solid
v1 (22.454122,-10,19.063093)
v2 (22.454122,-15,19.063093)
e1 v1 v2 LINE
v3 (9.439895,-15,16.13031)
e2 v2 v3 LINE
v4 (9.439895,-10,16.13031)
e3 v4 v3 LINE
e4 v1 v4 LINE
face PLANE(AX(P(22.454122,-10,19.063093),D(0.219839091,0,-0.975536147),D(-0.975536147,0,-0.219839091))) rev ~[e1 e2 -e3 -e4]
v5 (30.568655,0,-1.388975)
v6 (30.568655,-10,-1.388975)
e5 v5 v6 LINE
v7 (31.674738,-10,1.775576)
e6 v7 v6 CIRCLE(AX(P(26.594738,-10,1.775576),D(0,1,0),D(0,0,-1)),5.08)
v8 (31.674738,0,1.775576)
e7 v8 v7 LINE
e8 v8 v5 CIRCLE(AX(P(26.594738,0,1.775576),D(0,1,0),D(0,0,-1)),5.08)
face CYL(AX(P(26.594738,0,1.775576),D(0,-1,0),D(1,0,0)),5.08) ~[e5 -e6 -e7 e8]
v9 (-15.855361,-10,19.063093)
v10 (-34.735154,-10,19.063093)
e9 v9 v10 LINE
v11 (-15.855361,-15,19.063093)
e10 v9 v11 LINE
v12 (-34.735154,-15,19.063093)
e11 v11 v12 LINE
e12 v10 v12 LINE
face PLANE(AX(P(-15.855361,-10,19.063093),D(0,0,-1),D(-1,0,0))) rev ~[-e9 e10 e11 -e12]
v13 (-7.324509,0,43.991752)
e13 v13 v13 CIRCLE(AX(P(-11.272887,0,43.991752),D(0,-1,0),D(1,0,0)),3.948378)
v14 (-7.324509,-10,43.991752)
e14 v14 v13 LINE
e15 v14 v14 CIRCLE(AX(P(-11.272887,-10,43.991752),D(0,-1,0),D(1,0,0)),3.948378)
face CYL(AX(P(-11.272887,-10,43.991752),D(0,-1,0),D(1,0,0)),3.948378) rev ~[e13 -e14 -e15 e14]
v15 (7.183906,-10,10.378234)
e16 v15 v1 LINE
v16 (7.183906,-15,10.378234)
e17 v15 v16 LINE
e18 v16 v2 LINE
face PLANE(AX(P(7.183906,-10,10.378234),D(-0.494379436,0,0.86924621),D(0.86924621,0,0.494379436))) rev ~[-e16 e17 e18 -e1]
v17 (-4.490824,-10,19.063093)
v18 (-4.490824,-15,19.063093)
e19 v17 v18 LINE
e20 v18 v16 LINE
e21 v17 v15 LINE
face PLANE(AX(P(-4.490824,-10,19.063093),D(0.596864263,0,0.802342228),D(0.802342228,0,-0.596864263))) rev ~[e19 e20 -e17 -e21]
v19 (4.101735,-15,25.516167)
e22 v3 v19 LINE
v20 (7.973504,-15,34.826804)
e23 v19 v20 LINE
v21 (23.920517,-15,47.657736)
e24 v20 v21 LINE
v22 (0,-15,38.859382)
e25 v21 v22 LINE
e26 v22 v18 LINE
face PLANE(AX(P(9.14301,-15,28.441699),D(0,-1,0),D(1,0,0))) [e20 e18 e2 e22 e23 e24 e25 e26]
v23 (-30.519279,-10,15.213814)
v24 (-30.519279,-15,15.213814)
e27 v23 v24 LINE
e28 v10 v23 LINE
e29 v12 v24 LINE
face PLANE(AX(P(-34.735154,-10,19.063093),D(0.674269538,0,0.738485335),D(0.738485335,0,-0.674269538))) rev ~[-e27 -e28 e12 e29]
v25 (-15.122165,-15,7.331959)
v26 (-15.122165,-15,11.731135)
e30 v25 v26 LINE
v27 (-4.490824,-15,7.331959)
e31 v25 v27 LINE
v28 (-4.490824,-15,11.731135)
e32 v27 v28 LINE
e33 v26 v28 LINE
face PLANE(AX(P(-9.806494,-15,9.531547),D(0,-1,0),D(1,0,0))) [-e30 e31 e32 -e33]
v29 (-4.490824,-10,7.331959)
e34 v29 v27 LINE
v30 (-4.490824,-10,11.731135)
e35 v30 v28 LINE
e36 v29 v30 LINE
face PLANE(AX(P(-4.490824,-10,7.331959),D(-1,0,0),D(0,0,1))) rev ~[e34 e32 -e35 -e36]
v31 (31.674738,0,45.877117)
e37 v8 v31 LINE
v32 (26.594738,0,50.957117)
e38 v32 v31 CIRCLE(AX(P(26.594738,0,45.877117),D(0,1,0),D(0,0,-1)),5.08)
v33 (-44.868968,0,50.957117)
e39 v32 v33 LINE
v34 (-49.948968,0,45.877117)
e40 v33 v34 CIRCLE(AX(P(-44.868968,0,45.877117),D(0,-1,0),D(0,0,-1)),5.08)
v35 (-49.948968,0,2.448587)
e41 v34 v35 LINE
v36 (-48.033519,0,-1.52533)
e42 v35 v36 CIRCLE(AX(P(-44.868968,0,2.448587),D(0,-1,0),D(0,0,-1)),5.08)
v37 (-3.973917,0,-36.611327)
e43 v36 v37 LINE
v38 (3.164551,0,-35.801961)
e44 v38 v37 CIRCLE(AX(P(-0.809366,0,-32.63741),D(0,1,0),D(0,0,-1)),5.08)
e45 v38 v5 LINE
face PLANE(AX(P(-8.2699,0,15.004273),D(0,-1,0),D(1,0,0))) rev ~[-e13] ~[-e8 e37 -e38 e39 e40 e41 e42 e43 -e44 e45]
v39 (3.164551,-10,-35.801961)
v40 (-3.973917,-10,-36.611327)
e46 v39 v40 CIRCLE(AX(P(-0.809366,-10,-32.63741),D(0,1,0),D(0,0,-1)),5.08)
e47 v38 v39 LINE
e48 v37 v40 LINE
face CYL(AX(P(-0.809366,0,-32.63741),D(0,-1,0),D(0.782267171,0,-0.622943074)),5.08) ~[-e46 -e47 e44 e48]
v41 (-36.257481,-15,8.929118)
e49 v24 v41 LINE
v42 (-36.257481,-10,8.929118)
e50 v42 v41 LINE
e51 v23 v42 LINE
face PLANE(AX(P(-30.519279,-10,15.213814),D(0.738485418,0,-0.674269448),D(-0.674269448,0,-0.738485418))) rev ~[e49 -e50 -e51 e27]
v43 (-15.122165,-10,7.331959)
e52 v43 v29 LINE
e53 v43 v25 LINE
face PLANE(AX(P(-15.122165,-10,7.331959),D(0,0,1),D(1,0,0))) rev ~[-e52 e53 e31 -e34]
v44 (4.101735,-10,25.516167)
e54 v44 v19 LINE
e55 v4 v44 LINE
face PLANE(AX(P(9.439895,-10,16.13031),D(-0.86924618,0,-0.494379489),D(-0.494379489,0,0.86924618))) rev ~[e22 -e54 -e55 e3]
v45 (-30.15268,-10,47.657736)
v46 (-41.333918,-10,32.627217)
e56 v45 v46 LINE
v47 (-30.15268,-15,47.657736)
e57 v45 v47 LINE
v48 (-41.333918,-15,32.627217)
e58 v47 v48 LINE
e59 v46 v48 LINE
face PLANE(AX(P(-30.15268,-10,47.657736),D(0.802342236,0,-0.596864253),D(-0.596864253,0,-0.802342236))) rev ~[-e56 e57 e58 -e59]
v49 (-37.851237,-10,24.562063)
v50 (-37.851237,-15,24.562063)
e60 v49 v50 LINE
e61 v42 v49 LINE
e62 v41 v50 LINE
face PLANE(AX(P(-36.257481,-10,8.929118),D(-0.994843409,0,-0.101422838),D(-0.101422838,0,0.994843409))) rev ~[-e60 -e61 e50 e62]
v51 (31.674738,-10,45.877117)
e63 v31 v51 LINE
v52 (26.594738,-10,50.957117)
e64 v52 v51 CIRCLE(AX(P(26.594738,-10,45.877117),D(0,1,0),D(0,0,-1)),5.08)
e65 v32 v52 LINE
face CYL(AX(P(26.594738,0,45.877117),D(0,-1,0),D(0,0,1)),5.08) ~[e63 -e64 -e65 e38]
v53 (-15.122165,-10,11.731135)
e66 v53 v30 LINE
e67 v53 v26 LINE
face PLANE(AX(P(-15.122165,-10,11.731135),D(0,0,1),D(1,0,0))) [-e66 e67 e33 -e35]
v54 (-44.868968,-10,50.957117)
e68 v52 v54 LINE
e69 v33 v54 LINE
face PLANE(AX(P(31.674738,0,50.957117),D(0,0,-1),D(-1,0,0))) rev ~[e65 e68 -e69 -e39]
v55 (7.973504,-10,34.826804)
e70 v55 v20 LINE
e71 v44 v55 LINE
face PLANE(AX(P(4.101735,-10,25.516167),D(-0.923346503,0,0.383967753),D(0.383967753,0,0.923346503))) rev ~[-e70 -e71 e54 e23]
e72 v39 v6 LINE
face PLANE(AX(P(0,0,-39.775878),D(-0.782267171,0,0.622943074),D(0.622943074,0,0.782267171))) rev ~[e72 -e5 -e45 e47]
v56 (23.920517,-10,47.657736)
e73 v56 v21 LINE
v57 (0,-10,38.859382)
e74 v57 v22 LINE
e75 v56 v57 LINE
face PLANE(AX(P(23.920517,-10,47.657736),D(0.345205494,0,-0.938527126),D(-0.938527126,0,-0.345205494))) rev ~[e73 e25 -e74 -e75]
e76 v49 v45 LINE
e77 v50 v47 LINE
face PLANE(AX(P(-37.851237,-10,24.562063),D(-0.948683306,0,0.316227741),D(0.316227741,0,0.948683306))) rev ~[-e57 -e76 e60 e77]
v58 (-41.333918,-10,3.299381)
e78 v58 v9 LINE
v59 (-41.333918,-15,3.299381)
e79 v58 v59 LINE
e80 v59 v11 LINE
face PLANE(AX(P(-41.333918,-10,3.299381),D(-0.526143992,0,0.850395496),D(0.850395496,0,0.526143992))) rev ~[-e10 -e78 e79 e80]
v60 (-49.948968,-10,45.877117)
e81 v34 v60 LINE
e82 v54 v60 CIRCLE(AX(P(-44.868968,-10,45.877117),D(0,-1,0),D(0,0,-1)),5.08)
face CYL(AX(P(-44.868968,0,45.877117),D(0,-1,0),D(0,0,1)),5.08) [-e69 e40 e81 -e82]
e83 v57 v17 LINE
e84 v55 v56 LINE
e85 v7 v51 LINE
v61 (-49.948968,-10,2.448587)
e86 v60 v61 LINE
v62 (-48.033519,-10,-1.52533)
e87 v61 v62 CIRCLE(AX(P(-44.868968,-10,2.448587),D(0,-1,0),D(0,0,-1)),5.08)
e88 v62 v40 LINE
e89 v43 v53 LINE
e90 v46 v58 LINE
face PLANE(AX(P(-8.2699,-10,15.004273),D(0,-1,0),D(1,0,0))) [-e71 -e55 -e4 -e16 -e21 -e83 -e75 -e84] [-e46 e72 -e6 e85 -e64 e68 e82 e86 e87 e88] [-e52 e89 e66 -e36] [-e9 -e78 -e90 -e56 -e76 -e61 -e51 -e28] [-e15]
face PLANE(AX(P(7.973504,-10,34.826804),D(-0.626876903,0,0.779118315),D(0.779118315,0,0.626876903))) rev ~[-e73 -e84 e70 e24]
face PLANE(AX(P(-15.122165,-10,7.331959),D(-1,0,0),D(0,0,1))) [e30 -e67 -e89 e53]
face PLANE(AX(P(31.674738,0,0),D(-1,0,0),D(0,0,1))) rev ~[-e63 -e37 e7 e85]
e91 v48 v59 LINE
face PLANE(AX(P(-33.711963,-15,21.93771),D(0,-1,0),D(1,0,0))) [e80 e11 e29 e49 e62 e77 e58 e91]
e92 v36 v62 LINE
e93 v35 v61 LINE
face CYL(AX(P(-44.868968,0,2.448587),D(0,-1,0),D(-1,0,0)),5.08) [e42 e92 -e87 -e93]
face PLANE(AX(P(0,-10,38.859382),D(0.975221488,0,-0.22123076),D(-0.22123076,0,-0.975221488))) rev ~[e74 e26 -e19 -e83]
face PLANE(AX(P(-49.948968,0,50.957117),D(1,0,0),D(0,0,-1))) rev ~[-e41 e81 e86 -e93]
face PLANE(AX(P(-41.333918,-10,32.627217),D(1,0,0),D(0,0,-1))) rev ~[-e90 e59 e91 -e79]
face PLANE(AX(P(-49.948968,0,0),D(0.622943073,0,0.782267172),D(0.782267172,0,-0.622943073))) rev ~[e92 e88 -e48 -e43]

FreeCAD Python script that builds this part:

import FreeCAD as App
import Part
import Sketcher
from FreeCAD import Vector


def edges_at(feature, points):
    """Names of the edges that pass closest to the given points."""
    edges = feature.Shape.Edges
    near = lambda p: min(range(len(edges)), key=lambda i: edges[i].distToShape(Part.Vertex(*p))[0])
    return sorted({f"Edge{near(p) + 1}" for p in points})


def add_polygon(sketch, points):
    """Adds a closed chain of lines whose ends are joined by coincident constraints."""
    first, n = sketch.GeometryCount, len(points)
    for a, b in zip(points, points[1:] + points[:1]):
        sketch.addGeometry(Part.LineSegment(App.Vector(*a, 0), App.Vector(*b, 0)), False)
    for i in range(n):
        sketch.addConstraint(Sketcher.Constraint("Coincident", first + i, 2, first + (i + 1) % n, 1))

doc = App.newDocument("Part")
params = doc.addObject("Spreadsheet::Sheet", "Params")
for row, (alias, value) in enumerate([
    ("pad1_length", "10 mm"),
    ("pad2_length", "5 mm"),
    ("pocket1_length", "101.092 mm"),
    ("fillet_radius", "5.08 mm"),
], start=1):
    params.set(f"A{row}", alias)
    params.set(f"B{row}", "=" + value)
    params.setAlias(f"B{row}", alias)

body = doc.addObject("PartDesign::Body", "Body")

# Sketch on XZ plane
sketch1 = body.newObject("Sketcher::SketchObject", "Sketch")
sketch1.AttachmentSupport = (doc.getObject("XZ_Plane"), [""])
sketch1.MapMode = "FlatFace"
add_polygon(sketch1, [(32, 51), (-50, 51), (-50, 0), (0, -40), (32, 0)])  # lines 0-4
sketch1.addConstraint(Sketcher.Constraint("Horizontal", 0))
sketch1.addConstraint(Sketcher.Constraint("Vertical", 1))
sketch1.addConstraint(Sketcher.Constraint("Vertical", 4))
sketch1.addConstraint(Sketcher.Constraint("PointOnObject", 1, 2, -1))
sketch1.addConstraint(Sketcher.Constraint("PointOnObject", 2, 2, -2))
sketch1.addConstraint(Sketcher.Constraint("PointOnObject", 3, 2, -1))
sketch1.addConstraint(Sketcher.Constraint("Perpendicular", 2, 3))
sketch1.addConstraint(Sketcher.Constraint("DistanceX", 0, 2, 0, 1, 81.623706))
sketch1.addConstraint(Sketcher.Constraint("DistanceY", 1, 2, 1, 1, 50.957117))
sketch1.addConstraint(Sketcher.Constraint("DistanceX", -1, 1, 3, 2, 31.674738))
pad1 = body.newObject("PartDesign::Pad", "Pad")
pad1.Profile = sketch1
pad1.setExpression("Length", "Params.pad1_length")

# Sketch on XZ plane
sketch2 = body.newObject("Sketcher::SketchObject", "Sketch001")
sketch2.AttachmentSupport = (doc.getObject("XZ_Plane"), [""])
sketch2.MapMode = "FlatFace"
sketch2.AttachmentOffset = App.Placement(Vector(0, 0, 10), App.Rotation())
add_polygon(sketch2, [(-37.9, 24.6), (-30.2, 47.7), (-41.3, 32.6), (-41.3, 3.3), (-15.9, 19.1), (-34.7, 19.1), (-30.5, 15.2), (-36.3, 8.9)])  # lines 0-7
add_polygon(sketch2, [(8, 34.8), (23.9, 47.7), (0, 38.9), (-4.5, 19.1), (7.2, 10.4), (22.5, 19.1), (9.4, 16.1), (4.1, 25.5)])  # lines 8-15
add_polygon(sketch2, [(-15.1, 11.7), (-15.1, 7.3), (-4.5, 7.3), (-4.5, 11.7)])  # lines 16-19
sketch2.addConstraint(Sketcher.Constraint("Vertical", 2))
sketch2.addConstraint(Sketcher.Constraint("Horizontal", 4))
sketch2.addConstraint(Sketcher.Constraint("Vertical", 16))
sketch2.addConstraint(Sketcher.Constraint("Horizontal", 17))
sketch2.addConstraint(Sketcher.Constraint("Vertical", 18))
sketch2.addConstraint(Sketcher.Constraint("Horizontal", 19))
sketch2.addConstraint(Sketcher.Constraint("PointOnObject", 9, 2, -2))
sketch2.addConstraint(Sketcher.Constraint("Perpendicular", 5, 6))
sketch2.addConstraint(Sketcher.Constraint("Perpendicular", 1, 11))
sketch2.addConstraint(Sketcher.Constraint("Perpendicular", 12, 14))
sketch2.addConstraint(Sketcher.Constraint("Horizontal", 0, 2, 8, 2))
sketch2.addConstraint(Sketcher.Constraint("Horizontal", 4, 2, 10, 2))
sketch2.addConstraint(Sketcher.Constraint("Horizontal", 10, 2, 12, 2))
sketch2.addConstraint(Sketcher.Constraint("Vertical", 10, 2, 17, 2))
sketch2.addConstraint(Sketcher.Constraint("Distance", 1, 18.733301))
sketch2.addConstraint(Sketcher.Constraint("DistanceX", 17, 1, 17, 2, 10.631341))
sketch2.addConstraint(Sketcher.Constraint("DistanceX", 5, 2, 0, 2, 0.366599))
sketch2.addConstraint(Sketcher.Constraint("DistanceX", 6, 2, 5, 2, 5.738202))
sketch2.addConstraint(Sketcher.Constraint("DistanceY", 6, 2, 1, 2, 23.698099))
sketch2.addConstraint(Sketcher.Constraint("DistanceY", 11, 2, 18, 2, 1.352901))
sketch2.addConstraint(Sketcher.Constraint("Distance", 6, 8.510251))
sketch2.addConstraint(Sketcher.Constraint("Distance", 11, 14.550811))
sketch2.addConstraint(Sketcher.Constraint("Distance", 13, 13.340589))
sketch2.addConstraint(Sketcher.Constraint("Distance", 15, 10.083579))
sketch2.addConstraint(Sketcher.Constraint("DistanceX", 4, 2, 4, 1, 18.879793))
sketch2.addConstraint(Sketcher.Constraint("DistanceY", 2, 2, 2, 1, 29.327836))
sketch2.addConstraint(Sketcher.Constraint("DistanceY", 16, 2, 16, 1, 4.399176))
sketch2.addConstraint(Sketcher.Constraint("DistanceX", 0, 2, -1, 1, 30.15268))
sketch2.addConstraint(Sketcher.Constraint("DistanceY", -1, 1, 2, 2, 3.299381))
sketch2.addConstraint(Sketcher.Constraint("DistanceX", 3, 2, -1, 1, 15.855361))
sketch2.addConstraint(Sketcher.Constraint("DistanceY", -1, 1, 9, 2, 38.859382))
sketch2.addConstraint(Sketcher.Constraint("DistanceY", -1, 1, 13, 2, 16.13031))
sketch2.addConstraint(Sketcher.Constraint("DistanceY", -1, 1, 16, 2, 7.331959))
sketch2.addConstraint(Sketcher.Constraint("DistanceY", 4, 2, 7, 2, 5.49897))
sketch2.addConstraint(Sketcher.Constraint("DistanceX", 1, 2, 7, 2, 3.482681))
sketch2.addConstraint(Sketcher.Constraint("DistanceX", 4, 2, 8, 2, 58.655671))
sketch2.addConstraint(Sketcher.Constraint("DistanceX", 4, 2, 10, 2, 30.24433))
sketch2.addConstraint(Sketcher.Constraint("DistanceX", 11, 2, 13, 2, 2.255989))
sketch2.addConstraint(Sketcher.Constraint("DistanceX", 10, 2, 14, 2, 8.592559))
sketch2.addConstraint(Sketcher.Constraint("DistanceX", 14, 2, 15, 2, 3.871769))
pad2 = body.newObject("PartDesign::Pad", "Pad001")
pad2.Profile = sketch2
pad2.setExpression("Length", "Params.pad2_length")

# Sketch on XZ plane
sketch3 = body.newObject("Sketcher::SketchObject", "Sketch002")
sketch3.AttachmentSupport = (doc.getObject("XZ_Plane"), [""])
sketch3.MapMode = "FlatFace"
sketch3.AttachmentOffset = App.Placement(Vector(0, 0, 10), App.Rotation())
sketch3.addGeometry(Part.Circle(Vector(-11.3, 44, 0), Vector(0, 0, 1), 3.9), False)
sketch3.addConstraint(Sketcher.Constraint("Diameter", 0, 7.896756))
sketch3.addConstraint(Sketcher.Constraint("DistanceY", -1, 1, 0, 3, 43.991752))
sketch3.addConstraint(Sketcher.Constraint("DistanceX", 0, 3, -1, 1, 11.272887))
pocket1 = body.newObject("PartDesign::Pocket", "Pocket")
pocket1.Profile = sketch3
pocket1.setExpression("Length", "Params.pocket1_length")
doc.recompute()

fillet = body.newObject("PartDesign::Fillet", "Fillet")
fillet.Base = (pocket1, edges_at(pocket1, [
    (-49.949, -5, 50.957),
    (31.675, -5, 50.957),
    (31.675, -5, 0),
    (0, -5, -39.776),
    (-49.949, -5, 0),
]))
fillet.setExpression("Radius", "Params.fillet_radius")

doc.recompute()
